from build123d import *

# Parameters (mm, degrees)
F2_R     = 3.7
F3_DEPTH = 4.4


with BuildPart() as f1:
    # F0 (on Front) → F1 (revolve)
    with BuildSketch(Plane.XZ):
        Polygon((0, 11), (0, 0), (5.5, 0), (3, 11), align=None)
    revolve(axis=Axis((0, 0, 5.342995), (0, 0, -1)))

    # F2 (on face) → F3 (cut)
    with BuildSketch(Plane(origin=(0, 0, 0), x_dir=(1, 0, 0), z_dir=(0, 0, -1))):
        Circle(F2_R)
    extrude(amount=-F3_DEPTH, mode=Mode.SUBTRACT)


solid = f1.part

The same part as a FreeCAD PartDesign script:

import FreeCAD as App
import Part
import Sketcher

doc = App.newDocument("Part")
body = doc.addObject("PartDesign::Body", "Body")

# Sketch on XZ plane
sketch1 = body.newObject("Sketcher::SketchObject", "Sketch")
sketch1.AttachmentSupport = (doc.getObject("XZ_Plane"), [""])
sketch1.MapMode = "FlatFace"
sketch1.addGeometry(Part.LineSegment(App.Vector(0, 11, 0), App.Vector(0, 0, 0)), False)
sketch1.addGeometry(Part.LineSegment(App.Vector(0, 0, 0), App.Vector(5.5, 0, 0)), False)
sketch1.addGeometry(Part.LineSegment(App.Vector(5.5, 0, 0), App.Vector(3, 11, 0)), False)
sketch1.addGeometry(Part.LineSegment(App.Vector(3, 11, 0), App.Vector(0, 11, 0)), False)
sketch1.addConstraint(Sketcher.Constraint("Coincident", 0, 2, 1, 1))
sketch1.addConstraint(Sketcher.Constraint("Coincident", 1, 2, 2, 1))
sketch1.addConstraint(Sketcher.Constraint("Coincident", 2, 2, 3, 1))
sketch1.addConstraint(Sketcher.Constraint("Coincident", 3, 2, 0, 1))
sketch1.addConstraint(Sketcher.Constraint("Vertical", 0))
sketch1.addConstraint(Sketcher.Constraint("Horizontal", 1))
sketch1.addConstraint(Sketcher.Constraint("Horizontal", 3))
sketch1.addConstraint(Sketcher.Constraint("Coincident", 0, 2, -1, 1))
sketch1.addConstraint(Sketcher.Constraint("DistanceX", 3, 2, 3, 1, 3.0))
sketch1.addConstraint(Sketcher.Constraint("DistanceY", 0, 2, 0, 1, 11.0))
sketch1.addConstraint(Sketcher.Constraint("DistanceX", 1, 1, 1, 2, 5.5))
revolution = body.newObject("PartDesign::Revolution", "Revolution")
revolution.Profile = sketch1
revolution.ReferenceAxis = (sketch1, ["V_Axis"])
revolution.Angle = 360

# Sketch on XY plane
sketch2 = body.newObject("Sketcher::SketchObject", "Sketch001")
sketch2.AttachmentSupport = (doc.getObject("XY_Plane"), [""])
sketch2.MapMode = "FlatFace"
sketch2.addGeometry(Part.Circle(App.Vector(0, 0, 0), App.Vector(0, 0, 1), 3.7), False)
sketch2.addConstraint(Sketcher.Constraint("Coincident", 0, 3, -1, 1))
sketch2.addConstraint(Sketcher.Constraint("Diameter", 0, 7.4))
pocket1 = body.newObject("PartDesign::Pocket", "Pocket")
pocket1.Profile = sketch2
pocket1.Length = 4.4
pocket1.Reversed = True

doc.recompute()
